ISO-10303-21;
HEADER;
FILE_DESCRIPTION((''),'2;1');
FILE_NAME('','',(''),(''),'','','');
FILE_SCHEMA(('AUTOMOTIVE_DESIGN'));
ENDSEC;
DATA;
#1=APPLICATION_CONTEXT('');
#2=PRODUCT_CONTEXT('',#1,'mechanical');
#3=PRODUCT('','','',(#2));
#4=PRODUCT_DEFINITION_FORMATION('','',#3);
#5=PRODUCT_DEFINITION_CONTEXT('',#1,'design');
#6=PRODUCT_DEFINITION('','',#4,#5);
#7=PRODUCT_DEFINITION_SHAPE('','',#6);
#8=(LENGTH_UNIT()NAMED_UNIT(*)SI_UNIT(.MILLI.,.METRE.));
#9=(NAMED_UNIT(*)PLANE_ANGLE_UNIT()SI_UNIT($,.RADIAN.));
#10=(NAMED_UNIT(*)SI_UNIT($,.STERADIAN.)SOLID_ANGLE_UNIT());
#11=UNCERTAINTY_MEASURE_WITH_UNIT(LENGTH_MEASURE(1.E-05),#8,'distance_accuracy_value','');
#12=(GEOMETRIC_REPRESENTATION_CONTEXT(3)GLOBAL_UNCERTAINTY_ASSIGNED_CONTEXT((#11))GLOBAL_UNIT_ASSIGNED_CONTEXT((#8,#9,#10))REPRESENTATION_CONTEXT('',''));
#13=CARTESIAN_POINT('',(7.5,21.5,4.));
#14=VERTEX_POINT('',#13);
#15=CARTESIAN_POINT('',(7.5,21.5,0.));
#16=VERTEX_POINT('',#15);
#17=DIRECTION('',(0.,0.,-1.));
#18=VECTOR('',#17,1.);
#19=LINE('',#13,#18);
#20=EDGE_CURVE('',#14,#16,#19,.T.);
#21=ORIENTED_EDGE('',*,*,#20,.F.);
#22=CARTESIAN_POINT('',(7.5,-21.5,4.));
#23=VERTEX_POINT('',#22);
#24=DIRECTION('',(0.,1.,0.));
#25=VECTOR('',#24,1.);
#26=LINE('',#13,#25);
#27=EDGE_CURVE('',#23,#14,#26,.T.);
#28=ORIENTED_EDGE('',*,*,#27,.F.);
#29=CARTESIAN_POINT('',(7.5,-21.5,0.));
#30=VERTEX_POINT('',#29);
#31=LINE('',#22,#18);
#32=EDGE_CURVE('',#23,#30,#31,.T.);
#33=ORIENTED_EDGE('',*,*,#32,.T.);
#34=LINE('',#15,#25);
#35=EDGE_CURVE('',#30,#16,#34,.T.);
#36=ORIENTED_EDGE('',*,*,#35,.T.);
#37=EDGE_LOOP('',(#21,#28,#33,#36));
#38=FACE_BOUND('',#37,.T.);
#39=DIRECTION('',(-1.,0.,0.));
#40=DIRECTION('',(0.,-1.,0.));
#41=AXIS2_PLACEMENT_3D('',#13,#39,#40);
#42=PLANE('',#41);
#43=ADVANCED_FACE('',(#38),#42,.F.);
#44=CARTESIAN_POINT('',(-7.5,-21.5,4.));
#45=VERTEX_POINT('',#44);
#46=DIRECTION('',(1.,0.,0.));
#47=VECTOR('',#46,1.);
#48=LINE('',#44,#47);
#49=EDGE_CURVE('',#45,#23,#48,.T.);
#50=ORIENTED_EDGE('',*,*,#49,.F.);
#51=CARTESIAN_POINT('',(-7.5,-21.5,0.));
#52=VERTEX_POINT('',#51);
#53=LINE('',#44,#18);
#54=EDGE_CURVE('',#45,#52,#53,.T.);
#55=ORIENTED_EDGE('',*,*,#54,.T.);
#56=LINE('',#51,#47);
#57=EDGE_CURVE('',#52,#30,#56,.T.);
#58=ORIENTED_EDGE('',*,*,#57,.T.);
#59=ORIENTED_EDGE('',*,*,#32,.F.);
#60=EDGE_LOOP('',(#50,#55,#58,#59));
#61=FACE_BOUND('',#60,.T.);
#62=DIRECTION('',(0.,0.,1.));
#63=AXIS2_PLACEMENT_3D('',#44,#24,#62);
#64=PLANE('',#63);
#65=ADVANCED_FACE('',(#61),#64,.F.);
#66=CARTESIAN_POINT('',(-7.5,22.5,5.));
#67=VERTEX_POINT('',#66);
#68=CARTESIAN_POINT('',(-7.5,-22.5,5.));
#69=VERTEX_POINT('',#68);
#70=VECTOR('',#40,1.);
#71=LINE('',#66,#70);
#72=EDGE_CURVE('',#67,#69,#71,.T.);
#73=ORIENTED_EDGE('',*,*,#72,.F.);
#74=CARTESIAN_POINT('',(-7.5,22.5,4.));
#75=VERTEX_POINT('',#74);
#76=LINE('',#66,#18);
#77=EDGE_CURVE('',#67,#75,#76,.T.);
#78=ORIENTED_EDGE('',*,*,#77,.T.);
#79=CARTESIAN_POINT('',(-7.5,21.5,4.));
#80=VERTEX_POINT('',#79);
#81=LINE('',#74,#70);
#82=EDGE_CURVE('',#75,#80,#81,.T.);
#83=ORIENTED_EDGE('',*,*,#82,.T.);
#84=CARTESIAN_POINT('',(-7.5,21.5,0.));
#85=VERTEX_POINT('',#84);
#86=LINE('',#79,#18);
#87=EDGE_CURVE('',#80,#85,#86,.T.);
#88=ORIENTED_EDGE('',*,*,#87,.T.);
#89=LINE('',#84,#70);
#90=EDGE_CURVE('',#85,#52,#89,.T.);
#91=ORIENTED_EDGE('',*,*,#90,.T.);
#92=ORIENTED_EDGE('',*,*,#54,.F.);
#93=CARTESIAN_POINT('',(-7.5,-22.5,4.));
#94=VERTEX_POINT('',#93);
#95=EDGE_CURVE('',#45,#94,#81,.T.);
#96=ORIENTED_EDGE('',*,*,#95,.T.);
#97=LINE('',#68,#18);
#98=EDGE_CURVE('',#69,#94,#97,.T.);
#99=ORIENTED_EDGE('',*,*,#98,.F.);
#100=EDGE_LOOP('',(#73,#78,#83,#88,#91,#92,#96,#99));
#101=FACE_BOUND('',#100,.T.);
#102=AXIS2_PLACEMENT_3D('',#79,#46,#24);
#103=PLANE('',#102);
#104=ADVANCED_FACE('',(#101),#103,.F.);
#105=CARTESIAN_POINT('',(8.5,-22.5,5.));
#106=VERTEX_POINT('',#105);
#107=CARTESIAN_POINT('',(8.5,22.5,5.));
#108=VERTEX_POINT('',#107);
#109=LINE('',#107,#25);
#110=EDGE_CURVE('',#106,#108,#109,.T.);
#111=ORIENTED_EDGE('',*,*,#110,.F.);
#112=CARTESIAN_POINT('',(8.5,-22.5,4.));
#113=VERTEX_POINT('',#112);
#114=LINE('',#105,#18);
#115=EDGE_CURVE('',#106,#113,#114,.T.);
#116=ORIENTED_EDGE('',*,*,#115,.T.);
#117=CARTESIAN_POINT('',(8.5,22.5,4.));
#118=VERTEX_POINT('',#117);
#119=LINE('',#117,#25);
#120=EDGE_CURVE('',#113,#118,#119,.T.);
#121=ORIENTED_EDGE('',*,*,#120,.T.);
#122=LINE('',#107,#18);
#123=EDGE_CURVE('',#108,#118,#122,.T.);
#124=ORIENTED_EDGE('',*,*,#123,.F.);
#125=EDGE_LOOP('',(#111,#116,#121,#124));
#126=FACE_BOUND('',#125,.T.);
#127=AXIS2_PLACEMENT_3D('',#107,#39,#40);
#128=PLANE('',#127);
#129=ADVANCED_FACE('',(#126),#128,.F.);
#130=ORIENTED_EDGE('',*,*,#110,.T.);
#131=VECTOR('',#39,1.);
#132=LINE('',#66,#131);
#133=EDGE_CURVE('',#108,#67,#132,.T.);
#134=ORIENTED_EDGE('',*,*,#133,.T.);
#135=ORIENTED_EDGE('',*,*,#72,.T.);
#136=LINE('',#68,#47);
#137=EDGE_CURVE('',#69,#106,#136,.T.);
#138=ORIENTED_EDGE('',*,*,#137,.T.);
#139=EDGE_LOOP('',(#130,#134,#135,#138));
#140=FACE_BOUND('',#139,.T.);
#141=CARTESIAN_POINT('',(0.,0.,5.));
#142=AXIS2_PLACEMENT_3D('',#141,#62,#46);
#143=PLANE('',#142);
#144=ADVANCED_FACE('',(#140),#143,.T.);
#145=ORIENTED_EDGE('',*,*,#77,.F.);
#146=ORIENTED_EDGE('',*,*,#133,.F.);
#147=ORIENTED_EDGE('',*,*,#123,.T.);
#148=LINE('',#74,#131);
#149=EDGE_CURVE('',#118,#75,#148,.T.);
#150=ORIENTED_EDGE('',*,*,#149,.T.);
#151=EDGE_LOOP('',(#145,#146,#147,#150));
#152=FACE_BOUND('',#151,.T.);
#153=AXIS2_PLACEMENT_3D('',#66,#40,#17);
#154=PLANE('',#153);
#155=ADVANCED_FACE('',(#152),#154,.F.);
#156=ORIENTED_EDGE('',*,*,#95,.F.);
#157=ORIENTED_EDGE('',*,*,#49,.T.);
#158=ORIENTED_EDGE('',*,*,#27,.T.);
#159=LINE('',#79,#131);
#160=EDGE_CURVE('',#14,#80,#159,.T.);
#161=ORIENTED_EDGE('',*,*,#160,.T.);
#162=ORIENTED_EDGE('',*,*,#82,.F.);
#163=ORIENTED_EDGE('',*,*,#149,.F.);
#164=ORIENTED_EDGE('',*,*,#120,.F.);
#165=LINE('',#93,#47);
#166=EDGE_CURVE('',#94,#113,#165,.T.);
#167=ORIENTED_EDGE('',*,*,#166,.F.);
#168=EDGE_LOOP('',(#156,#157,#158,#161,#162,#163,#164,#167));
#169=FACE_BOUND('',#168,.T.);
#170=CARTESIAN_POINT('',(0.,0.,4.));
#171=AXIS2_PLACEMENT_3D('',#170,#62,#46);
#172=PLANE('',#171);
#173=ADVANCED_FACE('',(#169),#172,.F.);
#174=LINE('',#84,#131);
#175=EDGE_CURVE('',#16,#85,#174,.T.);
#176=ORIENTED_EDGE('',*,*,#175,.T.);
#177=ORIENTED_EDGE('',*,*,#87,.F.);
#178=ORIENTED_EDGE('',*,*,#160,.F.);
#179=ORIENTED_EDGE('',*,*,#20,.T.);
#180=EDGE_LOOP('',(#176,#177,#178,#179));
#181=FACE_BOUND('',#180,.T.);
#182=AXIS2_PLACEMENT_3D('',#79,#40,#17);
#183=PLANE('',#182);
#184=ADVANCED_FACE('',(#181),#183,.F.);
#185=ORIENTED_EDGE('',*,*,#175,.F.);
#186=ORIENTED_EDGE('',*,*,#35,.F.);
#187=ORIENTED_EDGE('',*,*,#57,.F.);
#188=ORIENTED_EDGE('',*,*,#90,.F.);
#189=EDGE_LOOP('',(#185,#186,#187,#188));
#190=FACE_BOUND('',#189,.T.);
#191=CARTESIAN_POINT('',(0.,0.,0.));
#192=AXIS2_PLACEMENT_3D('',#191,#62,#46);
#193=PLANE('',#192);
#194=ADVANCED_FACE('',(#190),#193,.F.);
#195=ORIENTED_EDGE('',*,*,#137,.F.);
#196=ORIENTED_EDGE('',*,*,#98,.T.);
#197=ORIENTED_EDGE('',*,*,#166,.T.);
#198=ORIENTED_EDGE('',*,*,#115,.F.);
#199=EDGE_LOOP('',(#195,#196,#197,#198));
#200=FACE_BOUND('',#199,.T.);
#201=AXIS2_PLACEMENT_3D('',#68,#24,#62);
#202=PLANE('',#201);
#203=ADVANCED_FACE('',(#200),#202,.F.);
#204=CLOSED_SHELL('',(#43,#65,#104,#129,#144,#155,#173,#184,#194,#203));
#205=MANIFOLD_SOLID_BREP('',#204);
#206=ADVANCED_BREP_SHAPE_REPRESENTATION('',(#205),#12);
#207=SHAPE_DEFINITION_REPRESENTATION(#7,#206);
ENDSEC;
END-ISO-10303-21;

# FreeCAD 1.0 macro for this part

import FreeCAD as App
import Part
import Sketcher


def add_polygon(sketch, points):
    """Adds a closed chain of lines whose ends are joined by coincident constraints."""
    first, n = sketch.GeometryCount, len(points)
    for a, b in zip(points, points[1:] + points[:1]):
        sketch.addGeometry(Part.LineSegment(App.Vector(*a, 0), App.Vector(*b, 0)), False)
    for i in range(n):
        sketch.addConstraint(Sketcher.Constraint("Coincident", first + i, 2, first + (i + 1) % n, 1))

doc = App.newDocument("Part")
body = doc.addObject("PartDesign::Body", "Body")

# Sketch on XY plane
sketch1 = body.newObject("Sketcher::SketchObject", "Sketch")
sketch1.AttachmentSupport = (doc.getObject("XY_Plane"), [""])
sketch1.MapMode = "FlatFace"
add_polygon(sketch1, [(-8, 22), (-8, -22), (8, -22), (8, 22)])  # lines 0-3
sketch1.addConstraint(Sketcher.Constraint("Vertical", 0))
sketch1.addConstraint(Sketcher.Constraint("Horizontal", 1))
sketch1.addConstraint(Sketcher.Constraint("Vertical", 2))
sketch1.addConstraint(Sketcher.Constraint("Horizontal", 3))
sketch1.addConstraint(Sketcher.Constraint("Symmetric", 0, 2, 2, 2, -1, 1))
sketch1.addConstraint(Sketcher.Constraint("DistanceX", 1, 1, 1, 2, 15.0))
sketch1.addConstraint(Sketcher.Constraint("DistanceY", 0, 2, 0, 1, 43.0))
pad1 = body.newObject("PartDesign::Pad", "Pad")
pad1.Profile = sketch1
pad1.Length = 4

# Sketch on XY plane
sketch2 = body.newObject("Sketcher::SketchObject", "Sketch001")
sketch2.AttachmentSupport = (doc.getObject("XY_Plane"), [""])
sketch2.MapMode = "FlatFace"
sketch2.AttachmentOffset = App.Placement(App.Vector(0, 0, 4), App.Rotation())
add_polygon(sketch2, [(-8, 22), (-8, -22), (8, -22), (8, 22)])  # lines 0-3
sketch2.addConstraint(Sketcher.Constraint("Vertical", 0))
sketch2.addConstraint(Sketcher.Constraint("Horizontal", 1))
sketch2.addConstraint(Sketcher.Constraint("Vertical", 2))
sketch2.addConstraint(Sketcher.Constraint("Horizontal", 3))
sketch2.addConstraint(Sketcher.Constraint("DistanceX", 1, 1, 1, 2, 16.0))
sketch2.addConstraint(Sketcher.Constraint("DistanceY", 0, 2, 0, 1, 45.0))
sketch2.addConstraint(Sketcher.Constraint("DistanceX", 0, 2, -1, 1, 7.5))
sketch2.addConstraint(Sketcher.Constraint("DistanceY", 0, 2, -1, 1, 22.5))
pad2 = body.newObject("PartDesign::Pad", "Pad001")
pad2.Profile = sketch2
pad2.Length = 1

doc.recompute()
